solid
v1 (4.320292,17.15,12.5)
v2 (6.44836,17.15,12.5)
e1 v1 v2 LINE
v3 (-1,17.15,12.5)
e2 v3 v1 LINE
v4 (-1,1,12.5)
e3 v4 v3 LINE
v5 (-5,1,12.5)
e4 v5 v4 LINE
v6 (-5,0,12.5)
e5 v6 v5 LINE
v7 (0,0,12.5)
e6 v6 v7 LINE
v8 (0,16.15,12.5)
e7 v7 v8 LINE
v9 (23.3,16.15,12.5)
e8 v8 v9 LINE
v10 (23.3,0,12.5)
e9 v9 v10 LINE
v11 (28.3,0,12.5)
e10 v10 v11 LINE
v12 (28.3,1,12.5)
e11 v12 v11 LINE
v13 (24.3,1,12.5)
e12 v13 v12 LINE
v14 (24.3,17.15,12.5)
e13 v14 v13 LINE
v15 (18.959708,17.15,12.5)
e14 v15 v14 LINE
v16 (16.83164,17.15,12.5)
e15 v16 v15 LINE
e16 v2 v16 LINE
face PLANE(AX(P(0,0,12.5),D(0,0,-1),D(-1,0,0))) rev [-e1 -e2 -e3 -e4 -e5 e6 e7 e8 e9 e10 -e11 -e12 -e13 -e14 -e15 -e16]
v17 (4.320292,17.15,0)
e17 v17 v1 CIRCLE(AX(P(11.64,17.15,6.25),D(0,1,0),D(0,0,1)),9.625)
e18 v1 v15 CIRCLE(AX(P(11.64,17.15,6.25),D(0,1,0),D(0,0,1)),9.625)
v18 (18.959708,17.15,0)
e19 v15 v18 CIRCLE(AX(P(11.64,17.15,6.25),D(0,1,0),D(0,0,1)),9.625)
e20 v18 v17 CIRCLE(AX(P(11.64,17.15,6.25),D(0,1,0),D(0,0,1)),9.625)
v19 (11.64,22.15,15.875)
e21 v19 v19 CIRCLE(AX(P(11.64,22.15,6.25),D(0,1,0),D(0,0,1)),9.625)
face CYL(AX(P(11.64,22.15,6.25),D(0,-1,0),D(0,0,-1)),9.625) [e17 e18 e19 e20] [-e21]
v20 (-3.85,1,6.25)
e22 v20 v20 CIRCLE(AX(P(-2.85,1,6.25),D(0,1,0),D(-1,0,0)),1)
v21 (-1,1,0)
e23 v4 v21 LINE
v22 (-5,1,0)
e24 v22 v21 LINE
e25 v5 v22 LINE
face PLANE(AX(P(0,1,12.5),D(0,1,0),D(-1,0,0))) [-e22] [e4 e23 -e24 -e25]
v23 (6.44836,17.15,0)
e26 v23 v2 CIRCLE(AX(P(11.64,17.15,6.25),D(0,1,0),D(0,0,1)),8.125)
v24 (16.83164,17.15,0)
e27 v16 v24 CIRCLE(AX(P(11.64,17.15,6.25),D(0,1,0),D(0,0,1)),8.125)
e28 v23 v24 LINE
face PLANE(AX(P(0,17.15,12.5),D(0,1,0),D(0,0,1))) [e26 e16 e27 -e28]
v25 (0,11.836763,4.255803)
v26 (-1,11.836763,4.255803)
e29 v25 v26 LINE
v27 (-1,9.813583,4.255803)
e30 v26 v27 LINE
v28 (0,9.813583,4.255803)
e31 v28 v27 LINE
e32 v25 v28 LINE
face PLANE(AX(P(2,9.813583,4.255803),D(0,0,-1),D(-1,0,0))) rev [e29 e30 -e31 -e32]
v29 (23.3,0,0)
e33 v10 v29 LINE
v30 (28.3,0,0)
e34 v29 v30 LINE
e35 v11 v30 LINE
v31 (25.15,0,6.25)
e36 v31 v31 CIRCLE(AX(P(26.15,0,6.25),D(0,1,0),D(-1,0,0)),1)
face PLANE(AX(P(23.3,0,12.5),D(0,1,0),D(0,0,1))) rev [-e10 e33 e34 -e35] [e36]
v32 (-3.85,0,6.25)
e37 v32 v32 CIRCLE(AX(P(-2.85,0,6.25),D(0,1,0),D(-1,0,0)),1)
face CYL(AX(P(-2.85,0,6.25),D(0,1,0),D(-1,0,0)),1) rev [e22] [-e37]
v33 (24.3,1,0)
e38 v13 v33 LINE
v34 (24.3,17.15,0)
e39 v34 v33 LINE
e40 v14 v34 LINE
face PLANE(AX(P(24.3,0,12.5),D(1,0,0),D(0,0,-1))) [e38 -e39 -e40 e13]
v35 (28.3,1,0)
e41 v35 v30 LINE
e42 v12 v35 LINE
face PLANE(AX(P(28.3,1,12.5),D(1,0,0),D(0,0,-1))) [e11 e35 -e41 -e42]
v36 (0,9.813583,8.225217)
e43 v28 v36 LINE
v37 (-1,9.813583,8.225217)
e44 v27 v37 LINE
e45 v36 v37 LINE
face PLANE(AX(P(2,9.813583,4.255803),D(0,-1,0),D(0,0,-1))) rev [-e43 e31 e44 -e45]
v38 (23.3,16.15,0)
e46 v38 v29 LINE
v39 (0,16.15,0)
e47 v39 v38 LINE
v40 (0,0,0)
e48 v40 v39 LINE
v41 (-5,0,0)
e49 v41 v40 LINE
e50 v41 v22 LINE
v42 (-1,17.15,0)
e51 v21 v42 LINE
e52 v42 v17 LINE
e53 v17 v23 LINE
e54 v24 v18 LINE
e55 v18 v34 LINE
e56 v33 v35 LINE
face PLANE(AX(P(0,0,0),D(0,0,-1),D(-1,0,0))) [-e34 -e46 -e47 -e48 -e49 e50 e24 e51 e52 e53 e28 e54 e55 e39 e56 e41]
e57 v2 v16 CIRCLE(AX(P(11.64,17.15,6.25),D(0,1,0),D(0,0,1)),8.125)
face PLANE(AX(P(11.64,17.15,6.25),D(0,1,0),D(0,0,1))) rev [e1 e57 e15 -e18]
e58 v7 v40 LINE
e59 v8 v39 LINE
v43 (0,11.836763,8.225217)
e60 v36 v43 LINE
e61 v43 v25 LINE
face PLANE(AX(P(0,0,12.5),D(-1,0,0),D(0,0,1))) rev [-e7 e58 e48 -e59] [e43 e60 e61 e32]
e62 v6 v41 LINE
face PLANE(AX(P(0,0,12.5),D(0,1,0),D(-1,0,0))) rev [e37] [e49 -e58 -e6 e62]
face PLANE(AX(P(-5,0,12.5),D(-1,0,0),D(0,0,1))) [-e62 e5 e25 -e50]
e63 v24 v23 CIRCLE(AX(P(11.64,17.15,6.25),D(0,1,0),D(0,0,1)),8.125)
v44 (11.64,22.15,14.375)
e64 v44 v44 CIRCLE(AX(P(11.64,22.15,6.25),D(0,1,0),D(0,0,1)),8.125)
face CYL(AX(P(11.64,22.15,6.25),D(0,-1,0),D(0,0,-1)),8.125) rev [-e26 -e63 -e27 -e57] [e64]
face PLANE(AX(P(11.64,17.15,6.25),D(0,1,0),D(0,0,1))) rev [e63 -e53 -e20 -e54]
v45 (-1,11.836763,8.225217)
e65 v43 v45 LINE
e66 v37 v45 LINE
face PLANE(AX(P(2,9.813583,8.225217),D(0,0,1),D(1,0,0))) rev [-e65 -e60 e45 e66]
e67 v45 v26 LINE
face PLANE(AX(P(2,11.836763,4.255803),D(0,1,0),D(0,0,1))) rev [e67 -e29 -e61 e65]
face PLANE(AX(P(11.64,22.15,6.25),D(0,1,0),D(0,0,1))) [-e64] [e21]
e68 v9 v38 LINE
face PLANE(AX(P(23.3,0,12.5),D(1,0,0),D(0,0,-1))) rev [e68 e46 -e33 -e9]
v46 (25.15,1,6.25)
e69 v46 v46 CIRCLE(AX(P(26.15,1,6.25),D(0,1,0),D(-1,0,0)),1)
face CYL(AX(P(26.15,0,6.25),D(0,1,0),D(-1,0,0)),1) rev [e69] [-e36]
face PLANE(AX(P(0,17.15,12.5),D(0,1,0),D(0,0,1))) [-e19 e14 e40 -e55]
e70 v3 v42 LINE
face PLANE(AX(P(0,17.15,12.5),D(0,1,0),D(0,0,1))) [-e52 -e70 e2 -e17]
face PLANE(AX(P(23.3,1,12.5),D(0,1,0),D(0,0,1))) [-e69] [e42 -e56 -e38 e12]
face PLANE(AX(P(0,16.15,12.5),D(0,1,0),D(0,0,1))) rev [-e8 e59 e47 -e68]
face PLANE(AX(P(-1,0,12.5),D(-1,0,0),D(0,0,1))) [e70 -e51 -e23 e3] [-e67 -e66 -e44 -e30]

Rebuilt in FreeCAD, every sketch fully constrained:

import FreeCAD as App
import Part
import Sketcher

V = App.Vector

doc = App.newDocument("Part")
body = doc.addObject("PartDesign::Body", "Body")

# Sketch on XY plane
sketch1 = body.newObject("Sketcher::SketchObject", "Sketch")
sketch1.AttachmentSupport = (doc.getObject("XY_Plane"), [""])
sketch1.MapMode = "FlatFace"
sketch1.addGeometry([
    Part.LineSegment(V(23.3, 0, 0), V(28.3, 0, 0)),  # 0
    Part.LineSegment(V(28.3, 0, 0), V(28.3, 1, 0)),  # 1
    Part.LineSegment(V(28.3, 1, 0), V(24.3, 1, 0)),  # 2
    Part.LineSegment(V(24.3, 1, 0), V(24.3, 17.1, 0)),  # 3
    Part.LineSegment(V(24.3, 17.1, 0), V(-1, 17.1, 0)),  # 4
    Part.LineSegment(V(-1, 17.1, 0), V(-1, 1, 0)),  # 5
    Part.LineSegment(V(-1, 1, 0), V(-5, 1, 0)),  # 6
    Part.LineSegment(V(-5, 1, 0), V(-5, 0, 0)),  # 7
    Part.LineSegment(V(-5, 0, 0), V(0, 0, 0)),  # 8
    Part.LineSegment(V(0, 0, 0), V(0, 16.1, 0)),  # 9
    Part.LineSegment(V(0, 16.1, 0), V(23.3, 16.1, 0)),  # 10
    Part.LineSegment(V(23.3, 16.1, 0), V(23.3, 0, 0)),  # 11
], False)
sketch1.addConstraint([
    Sketcher.Constraint("Coincident", 0, 2, 1, 1),
    Sketcher.Constraint("Coincident", 1, 2, 2, 1),
    Sketcher.Constraint("Coincident", 2, 2, 3, 1),
    Sketcher.Constraint("Coincident", 3, 2, 4, 1),
    Sketcher.Constraint("Coincident", 4, 2, 5, 1),
    Sketcher.Constraint("Coincident", 5, 2, 6, 1),
    Sketcher.Constraint("Coincident", 6, 2, 7, 1),
    Sketcher.Constraint("Coincident", 7, 2, 8, 1),
    Sketcher.Constraint("Coincident", 8, 2, 9, 1),
    Sketcher.Constraint("Coincident", 9, 2, 10, 1),
    Sketcher.Constraint("Coincident", 10, 2, 11, 1),
    Sketcher.Constraint("Coincident", 11, 2, 0, 1),
    Sketcher.Constraint("Horizontal", 0),
    Sketcher.Constraint("Vertical", 1),
    Sketcher.Constraint("Horizontal", 2),
    Sketcher.Constraint("Vertical", 3),
    Sketcher.Constraint("Horizontal", 4),
    Sketcher.Constraint("Vertical", 5),
    Sketcher.Constraint("Horizontal", 6),
    Sketcher.Constraint("Vertical", 7),
    Sketcher.Constraint("Horizontal", 8),
    Sketcher.Constraint("Vertical", 9),
    Sketcher.Constraint("Horizontal", 10),
    Sketcher.Constraint("Vertical", 11),
    Sketcher.Constraint("Coincident", 8, 2, -1, 1),
    Sketcher.Constraint("PointOnObject", 0, 2, -1),
    Sketcher.Constraint("Horizontal", 2, 2, 5, 2),
    Sketcher.Constraint("Equal", 2, 6),
    Sketcher.Constraint("Equal", 0, 8),
    Sketcher.Constraint("Equal", 5, 9),
    Sketcher.Constraint("DistanceX", 0, 1, 0, 2, 5.0),
    Sketcher.Constraint("DistanceX", 2, 2, 2, 1, 4.0),
    Sketcher.Constraint("DistanceY", 1, 1, 1, 2, 1.0),
    Sketcher.Constraint("DistanceX", 4, 2, 4, 1, 25.3),
    Sketcher.Constraint("DistanceY", 3, 1, 3, 2, 16.15),
])
pad1 = body.newObject("PartDesign::Pad", "Pad")
pad1.Profile = sketch1
pad1.Length = 12.5

# Sketch on XZ plane
sketch2 = body.newObject("Sketcher::SketchObject", "Sketch001")
sketch2.AttachmentSupport = (doc.getObject("XZ_Plane"), [""])
sketch2.MapMode = "FlatFace"
sketch2.AttachmentOffset = App.Placement(V(0, 0, -1), App.Rotation())
sketch2.addGeometry([
    Part.Circle(V(-2.9, 6.2, 0), V(0, 0, 1), 1),
    Part.Circle(V(26.1, 6.2, 0), V(0, 0, 1), 1),
], False)
sketch2.addConstraint([
    Sketcher.Constraint("Equal", 0, 1),
    Sketcher.Constraint("Horizontal", 0, 3, 1, 3),
    Sketcher.Constraint("Diameter", 0, 2.0),
    Sketcher.Constraint("DistanceX", 0, 3, 1, 3, 29.0),
    Sketcher.Constraint("DistanceX", 0, 3, -1, 1, 2.85),
    Sketcher.Constraint("DistanceY", -1, 1, 0, 3, 6.25),
])
pocket1 = body.newObject("PartDesign::Pocket", "Pocket")
pocket1.Profile = sketch2
pocket1.Type = "ThroughAll"
pocket1.Reversed = True

# Sketch on YZ plane
sketch3 = body.newObject("Sketcher::SketchObject", "Sketch002")
sketch3.AttachmentSupport = (doc.getObject("YZ_Plane"), [""])
sketch3.MapMode = "FlatFace"
sketch3.AttachmentOffset = App.Placement(V(0, 0, -1), App.Rotation())
sketch3.addGeometry([
    Part.LineSegment(V(11.8, 4.3, 0), V(9.8, 4.3, 0)),
    Part.LineSegment(V(9.8, 4.3, 0), V(9.8, 8.2, 0)),
    Part.LineSegment(V(9.8, 8.2, 0), V(11.8, 8.2, 0)),
    Part.LineSegment(V(11.8, 8.2, 0), V(11.8, 4.3, 0)),
], False)
sketch3.addConstraint([
    Sketcher.Constraint("Coincident", 0, 2, 1, 1),
    Sketcher.Constraint("Coincident", 1, 2, 2, 1),
    Sketcher.Constraint("Coincident", 2, 2, 3, 1),
    Sketcher.Constraint("Coincident", 3, 2, 0, 1),
    Sketcher.Constraint("Horizontal", 0),
    Sketcher.Constraint("Vertical", 1),
    Sketcher.Constraint("Horizontal", 2),
    Sketcher.Constraint("Vertical", 3),
    Sketcher.Constraint("DistanceX", 0, 2, 0, 1, 2.02318),
    Sketcher.Constraint("DistanceY", 1, 1, 1, 2, 3.969414),
    Sketcher.Constraint("DistanceX", -1, 1, 0, 2, 9.813583),
    Sketcher.Constraint("DistanceY", -1, 1, 0, 2, 4.255803),
])
pocket2 = body.newObject("PartDesign::Pocket", "Pocket001")
pocket2.Profile = sketch3
pocket2.Length = 3
pocket2.Reversed = True

# Sketch on XZ plane
sketch4 = body.newObject("Sketcher::SketchObject", "Sketch003")
sketch4.AttachmentSupport = (doc.getObject("XZ_Plane"), [""])
sketch4.MapMode = "FlatFace"
sketch4.AttachmentOffset = App.Placement(V(0, 0, -17.15), App.Rotation())
sketch4.addGeometry([
    Part.Circle(V(12, 6, 0), V(0, 0, 1), 10),
    Part.Circle(V(12, 6, 0), V(0, 0, 1), 8),
], False)
sketch4.addConstraint([
    Sketcher.Constraint("Coincident", 1, 3, 0, 3),
    Sketcher.Constraint("Diameter", 0, 19.25),
    Sketcher.Constraint("Diameter", 1, 16.25),
    Sketcher.Constraint("DistanceX", -1, 1, 0, 3, 11.64),
    Sketcher.Constraint("DistanceY", -1, 1, 0, 3, 6.25),
])
pad2 = body.newObject("PartDesign::Pad", "Pad001")
pad2.Profile = sketch4
pad2.Length = 5
pad2.Reversed = True

doc.recompute()
